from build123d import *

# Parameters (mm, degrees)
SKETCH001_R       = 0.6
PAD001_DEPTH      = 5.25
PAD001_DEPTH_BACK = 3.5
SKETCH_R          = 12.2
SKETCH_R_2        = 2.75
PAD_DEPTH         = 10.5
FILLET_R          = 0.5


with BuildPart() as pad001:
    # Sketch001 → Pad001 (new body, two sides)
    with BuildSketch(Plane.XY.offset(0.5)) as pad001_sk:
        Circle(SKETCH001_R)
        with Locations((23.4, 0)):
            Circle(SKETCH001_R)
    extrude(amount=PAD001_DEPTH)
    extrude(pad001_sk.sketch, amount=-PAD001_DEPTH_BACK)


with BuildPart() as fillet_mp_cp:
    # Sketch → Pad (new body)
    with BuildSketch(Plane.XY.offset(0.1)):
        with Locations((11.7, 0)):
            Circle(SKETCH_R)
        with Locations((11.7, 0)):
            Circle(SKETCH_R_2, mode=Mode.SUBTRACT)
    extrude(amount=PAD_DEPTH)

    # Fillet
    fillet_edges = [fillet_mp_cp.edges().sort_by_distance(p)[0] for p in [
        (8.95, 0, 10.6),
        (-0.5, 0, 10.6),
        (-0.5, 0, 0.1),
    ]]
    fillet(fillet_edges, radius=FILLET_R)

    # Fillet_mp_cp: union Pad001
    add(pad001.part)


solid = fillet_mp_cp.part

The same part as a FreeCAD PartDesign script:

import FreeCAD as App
import Part
import Sketcher

V = App.Vector
Q = App.Units.Quantity


def edges_at(feature, points):
    """Names of the edges that pass closest to the given points."""
    edges = feature.Shape.Edges
    near = lambda p: min(range(len(edges)), key=lambda i: edges[i].distToShape(Part.Vertex(*p))[0])
    return sorted({f"Edge{near(p) + 1}" for p in points})

doc = App.newDocument("Part")
body = doc.addObject("PartDesign::Body", "Body")
body.AllowCompound = True

sketch1 = doc.addObject("Sketcher::SketchObject", "Sketch")
body.addObject(sketch1)
sketch1.AttachmentSupport = (doc.XY_Plane, [""])
sketch1.MapMode = "FlatFace"
sketch1.AttachmentOffset = App.Placement(V(0, 0, 0.5), App.Rotation())
sketch1.addGeometry(Part.Circle(V(0, 0, 0), V(0, 0, 1), 0.6), False)
sketch1.addGeometry(Part.Circle(V(23.4, 0, 0), V(0, 0, 1), 0.6), False)
sketch1.addConstraint(Sketcher.Constraint("Coincident", 0, 3, -1, 1))
sketch1.addConstraint(Sketcher.Constraint("Equal", 0, 1))
sketch1.addConstraint(Sketcher.Constraint("PointOnObject", 1, 3, -1))
sketch1.addConstraint(Sketcher.Constraint("Diameter", 0, Q("1.2 mm")))
sketch1.addConstraint(Sketcher.Constraint("DistanceX", -1, 1, 1, 3, Q("23.4 mm")))
pad1 = doc.addObject("PartDesign::Pad", "Pad")
body.addObject(pad1)
pad1.Profile = sketch1
pad1.Type = "TwoLengths"
pad1.Length = 5.25
pad1.Length2 = 3.5
body2 = doc.addObject("PartDesign::Body", "Body001")

sketch2 = doc.addObject("Sketcher::SketchObject", "Sketch001")
body2.addObject(sketch2)
sketch2.AttachmentSupport = (doc.getObject("XY_Plane001"), [""])
sketch2.MapMode = "FlatFace"
sketch2.AttachmentOffset = App.Placement(V(0, 0, 0.1), App.Rotation())
sketch2.addGeometry(Part.Circle(V(11.7, 0, 0), V(0, 0, 1), 12.2), False)
sketch2.addGeometry(Part.Circle(V(11.7, 0, 0), V(0, 0, 1), 2.8), False)
sketch2.addConstraint(Sketcher.Constraint("Coincident", 1, 3, 0, 3))
sketch2.addConstraint(Sketcher.Constraint("PointOnObject", 0, 3, -1))
sketch2.addConstraint(Sketcher.Constraint("Diameter", 0, Q("24.4 mm")))
sketch2.addConstraint(Sketcher.Constraint("Diameter", 1, Q("5.5 mm")))
sketch2.addConstraint(Sketcher.Constraint("DistanceX", -1, 1, 0, 3, Q("11.7 mm")))
pad2 = doc.addObject("PartDesign::Pad", "Pad001")
body2.addObject(pad2)
pad2.Profile = sketch2
pad2.Length = 10.5
doc.recompute()

fillet = doc.addObject("PartDesign::Fillet", "Fillet")
body2.addObject(fillet)
fillet.Base = (pad2, edges_at(pad2, [(8.95, 0, 10.6), (-0.5, 0, 10.6), (-0.5, 0, 0.1)]))
fillet.Radius = 0.5
doc.recompute()

boolean = doc.addObject("PartDesign::Boolean", "Boolean")
body2.addObject(boolean)
boolean.Type = "Fuse"
boolean.addObjects([body])

doc.recompute()
